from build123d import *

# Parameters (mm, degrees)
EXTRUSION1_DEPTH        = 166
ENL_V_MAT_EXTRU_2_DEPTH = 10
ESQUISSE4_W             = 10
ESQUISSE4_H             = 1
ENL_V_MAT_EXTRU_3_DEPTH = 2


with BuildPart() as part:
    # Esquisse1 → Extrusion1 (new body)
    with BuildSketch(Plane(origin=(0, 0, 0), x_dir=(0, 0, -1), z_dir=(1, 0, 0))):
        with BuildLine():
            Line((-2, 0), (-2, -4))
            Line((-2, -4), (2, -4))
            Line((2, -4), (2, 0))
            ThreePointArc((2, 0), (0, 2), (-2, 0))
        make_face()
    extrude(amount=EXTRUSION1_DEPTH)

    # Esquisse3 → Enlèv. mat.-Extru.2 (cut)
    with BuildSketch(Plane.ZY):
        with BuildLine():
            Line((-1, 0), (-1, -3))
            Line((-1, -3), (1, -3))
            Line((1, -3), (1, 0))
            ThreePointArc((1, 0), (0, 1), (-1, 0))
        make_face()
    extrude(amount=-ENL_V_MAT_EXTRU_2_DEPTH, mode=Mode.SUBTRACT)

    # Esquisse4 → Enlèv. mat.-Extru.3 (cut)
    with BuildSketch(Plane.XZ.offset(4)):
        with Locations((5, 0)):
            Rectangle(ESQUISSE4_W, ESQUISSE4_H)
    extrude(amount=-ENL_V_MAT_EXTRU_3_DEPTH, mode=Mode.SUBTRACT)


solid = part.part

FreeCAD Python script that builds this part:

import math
import FreeCAD as App
import Part
import Sketcher
from FreeCAD import Vector

doc = App.newDocument("Part")
body = doc.addObject("PartDesign::Body", "Body")

sketch1 = body.newObject("Sketcher::SketchObject", "Sketch")
sketch1.AttachmentSupport = (doc.getObject("YZ_Plane"), [""])
sketch1.MapMode = "FlatFace"
sketch1.addGeometry([
    Part.LineSegment(Vector(0, 2, 0), Vector(-4, 2, 0)),
    Part.LineSegment(Vector(-4, 2, 0), Vector(-4, -2, 0)),
    Part.LineSegment(Vector(-4, -2, 0), Vector(0, -2, 0)),
    Part.ArcOfCircle(Part.Circle(Vector(0, 0, 0), Vector(0, 0, 1), 2), math.radians(-90), math.radians(90)),
], False)
sketch1.addConstraint([
    Sketcher.Constraint("Coincident", 0, 2, 1, 1),
    Sketcher.Constraint("Coincident", 1, 2, 2, 1),
    Sketcher.Constraint("Tangent", 2, 2, 3, 1),
    Sketcher.Constraint("Tangent", 3, 2, 0, 1),
    Sketcher.Constraint("Horizontal", 0),
    Sketcher.Constraint("Vertical", 1),
    Sketcher.Constraint("Horizontal", 2),
    Sketcher.Constraint("Coincident", 3, 3, -1, 1),
    Sketcher.Constraint("Equal", 2, 1),
    Sketcher.Constraint("Radius", 3, 2.0),
])
pad1 = body.newObject("PartDesign::Pad", "Pad")
pad1.Profile = sketch1
pad1.Length = 166

sketch2 = body.newObject("Sketcher::SketchObject", "Sketch001")
sketch2.AttachmentSupport = (doc.getObject("YZ_Plane"), [""])
sketch2.MapMode = "FlatFace"
sketch2.addGeometry([
    Part.LineSegment(Vector(0, -1, 0), Vector(-3, -1, 0)),
    Part.LineSegment(Vector(-3, -1, 0), Vector(-3, 1, 0)),
    Part.LineSegment(Vector(-3, 1, 0), Vector(0, 1, 0)),
    Part.ArcOfCircle(Part.Circle(Vector(0, 0, 0), Vector(0, 0, 1), 1), math.radians(-90), math.radians(90)),
], False)
sketch2.addConstraint([
    Sketcher.Constraint("Coincident", 0, 2, 1, 1),
    Sketcher.Constraint("Coincident", 1, 2, 2, 1),
    Sketcher.Constraint("Tangent", 2, 2, 3, 2),
    Sketcher.Constraint("Tangent", 3, 1, 0, 1),
    Sketcher.Constraint("Horizontal", 0),
    Sketcher.Constraint("Vertical", 1),
    Sketcher.Constraint("Horizontal", 2),
    Sketcher.Constraint("Coincident", 3, 3, -1, 1),
    Sketcher.Constraint("Radius", 3, 1.0),
    Sketcher.Constraint("DistanceX", 0, 2, 0, 1, 3.0),
])
pocket1 = body.newObject("PartDesign::Pocket", "Pocket")
pocket1.Profile = sketch2
pocket1.Length = 10
pocket1.Reversed = True

sketch3 = body.newObject("Sketcher::SketchObject", "Sketch002")
sketch3.AttachmentSupport = (doc.getObject("XZ_Plane"), [""])
sketch3.MapMode = "FlatFace"
sketch3.AttachmentOffset = App.Placement(Vector(0, 0, 4), App.Rotation())
sketch3.addGeometry([
    Part.LineSegment(Vector(0, 0.5, 0), Vector(0, -0.5, 0)),
    Part.LineSegment(Vector(0, -0.5, 0), Vector(10, -0.5, 0)),
    Part.LineSegment(Vector(10, -0.5, 0), Vector(10, 0.5, 0)),
    Part.LineSegment(Vector(10, 0.5, 0), Vector(0, 0.5, 0)),
], False)
sketch3.addConstraint([
    Sketcher.Constraint("Coincident", 0, 2, 1, 1),
    Sketcher.Constraint("Coincident", 1, 2, 2, 1),
    Sketcher.Constraint("Coincident", 2, 2, 3, 1),
    Sketcher.Constraint("Coincident", 3, 2, 0, 1),
    Sketcher.Constraint("Vertical", 0),
    Sketcher.Constraint("Horizontal", 1),
    Sketcher.Constraint("Vertical", 2),
    Sketcher.Constraint("Horizontal", 3),
    Sketcher.Constraint("Symmetric", 0, 2, 3, 2, -1, 1),
    Sketcher.Constraint("DistanceX", 1, 1, 1, 2, 10.0),
    Sketcher.Constraint("DistanceY", 0, 2, 0, 1, 1.0),
])
pocket2 = body.newObject("PartDesign::Pocket", "Pocket001")
pocket2.Profile = sketch3
pocket2.Length = 2

doc.recompute()
